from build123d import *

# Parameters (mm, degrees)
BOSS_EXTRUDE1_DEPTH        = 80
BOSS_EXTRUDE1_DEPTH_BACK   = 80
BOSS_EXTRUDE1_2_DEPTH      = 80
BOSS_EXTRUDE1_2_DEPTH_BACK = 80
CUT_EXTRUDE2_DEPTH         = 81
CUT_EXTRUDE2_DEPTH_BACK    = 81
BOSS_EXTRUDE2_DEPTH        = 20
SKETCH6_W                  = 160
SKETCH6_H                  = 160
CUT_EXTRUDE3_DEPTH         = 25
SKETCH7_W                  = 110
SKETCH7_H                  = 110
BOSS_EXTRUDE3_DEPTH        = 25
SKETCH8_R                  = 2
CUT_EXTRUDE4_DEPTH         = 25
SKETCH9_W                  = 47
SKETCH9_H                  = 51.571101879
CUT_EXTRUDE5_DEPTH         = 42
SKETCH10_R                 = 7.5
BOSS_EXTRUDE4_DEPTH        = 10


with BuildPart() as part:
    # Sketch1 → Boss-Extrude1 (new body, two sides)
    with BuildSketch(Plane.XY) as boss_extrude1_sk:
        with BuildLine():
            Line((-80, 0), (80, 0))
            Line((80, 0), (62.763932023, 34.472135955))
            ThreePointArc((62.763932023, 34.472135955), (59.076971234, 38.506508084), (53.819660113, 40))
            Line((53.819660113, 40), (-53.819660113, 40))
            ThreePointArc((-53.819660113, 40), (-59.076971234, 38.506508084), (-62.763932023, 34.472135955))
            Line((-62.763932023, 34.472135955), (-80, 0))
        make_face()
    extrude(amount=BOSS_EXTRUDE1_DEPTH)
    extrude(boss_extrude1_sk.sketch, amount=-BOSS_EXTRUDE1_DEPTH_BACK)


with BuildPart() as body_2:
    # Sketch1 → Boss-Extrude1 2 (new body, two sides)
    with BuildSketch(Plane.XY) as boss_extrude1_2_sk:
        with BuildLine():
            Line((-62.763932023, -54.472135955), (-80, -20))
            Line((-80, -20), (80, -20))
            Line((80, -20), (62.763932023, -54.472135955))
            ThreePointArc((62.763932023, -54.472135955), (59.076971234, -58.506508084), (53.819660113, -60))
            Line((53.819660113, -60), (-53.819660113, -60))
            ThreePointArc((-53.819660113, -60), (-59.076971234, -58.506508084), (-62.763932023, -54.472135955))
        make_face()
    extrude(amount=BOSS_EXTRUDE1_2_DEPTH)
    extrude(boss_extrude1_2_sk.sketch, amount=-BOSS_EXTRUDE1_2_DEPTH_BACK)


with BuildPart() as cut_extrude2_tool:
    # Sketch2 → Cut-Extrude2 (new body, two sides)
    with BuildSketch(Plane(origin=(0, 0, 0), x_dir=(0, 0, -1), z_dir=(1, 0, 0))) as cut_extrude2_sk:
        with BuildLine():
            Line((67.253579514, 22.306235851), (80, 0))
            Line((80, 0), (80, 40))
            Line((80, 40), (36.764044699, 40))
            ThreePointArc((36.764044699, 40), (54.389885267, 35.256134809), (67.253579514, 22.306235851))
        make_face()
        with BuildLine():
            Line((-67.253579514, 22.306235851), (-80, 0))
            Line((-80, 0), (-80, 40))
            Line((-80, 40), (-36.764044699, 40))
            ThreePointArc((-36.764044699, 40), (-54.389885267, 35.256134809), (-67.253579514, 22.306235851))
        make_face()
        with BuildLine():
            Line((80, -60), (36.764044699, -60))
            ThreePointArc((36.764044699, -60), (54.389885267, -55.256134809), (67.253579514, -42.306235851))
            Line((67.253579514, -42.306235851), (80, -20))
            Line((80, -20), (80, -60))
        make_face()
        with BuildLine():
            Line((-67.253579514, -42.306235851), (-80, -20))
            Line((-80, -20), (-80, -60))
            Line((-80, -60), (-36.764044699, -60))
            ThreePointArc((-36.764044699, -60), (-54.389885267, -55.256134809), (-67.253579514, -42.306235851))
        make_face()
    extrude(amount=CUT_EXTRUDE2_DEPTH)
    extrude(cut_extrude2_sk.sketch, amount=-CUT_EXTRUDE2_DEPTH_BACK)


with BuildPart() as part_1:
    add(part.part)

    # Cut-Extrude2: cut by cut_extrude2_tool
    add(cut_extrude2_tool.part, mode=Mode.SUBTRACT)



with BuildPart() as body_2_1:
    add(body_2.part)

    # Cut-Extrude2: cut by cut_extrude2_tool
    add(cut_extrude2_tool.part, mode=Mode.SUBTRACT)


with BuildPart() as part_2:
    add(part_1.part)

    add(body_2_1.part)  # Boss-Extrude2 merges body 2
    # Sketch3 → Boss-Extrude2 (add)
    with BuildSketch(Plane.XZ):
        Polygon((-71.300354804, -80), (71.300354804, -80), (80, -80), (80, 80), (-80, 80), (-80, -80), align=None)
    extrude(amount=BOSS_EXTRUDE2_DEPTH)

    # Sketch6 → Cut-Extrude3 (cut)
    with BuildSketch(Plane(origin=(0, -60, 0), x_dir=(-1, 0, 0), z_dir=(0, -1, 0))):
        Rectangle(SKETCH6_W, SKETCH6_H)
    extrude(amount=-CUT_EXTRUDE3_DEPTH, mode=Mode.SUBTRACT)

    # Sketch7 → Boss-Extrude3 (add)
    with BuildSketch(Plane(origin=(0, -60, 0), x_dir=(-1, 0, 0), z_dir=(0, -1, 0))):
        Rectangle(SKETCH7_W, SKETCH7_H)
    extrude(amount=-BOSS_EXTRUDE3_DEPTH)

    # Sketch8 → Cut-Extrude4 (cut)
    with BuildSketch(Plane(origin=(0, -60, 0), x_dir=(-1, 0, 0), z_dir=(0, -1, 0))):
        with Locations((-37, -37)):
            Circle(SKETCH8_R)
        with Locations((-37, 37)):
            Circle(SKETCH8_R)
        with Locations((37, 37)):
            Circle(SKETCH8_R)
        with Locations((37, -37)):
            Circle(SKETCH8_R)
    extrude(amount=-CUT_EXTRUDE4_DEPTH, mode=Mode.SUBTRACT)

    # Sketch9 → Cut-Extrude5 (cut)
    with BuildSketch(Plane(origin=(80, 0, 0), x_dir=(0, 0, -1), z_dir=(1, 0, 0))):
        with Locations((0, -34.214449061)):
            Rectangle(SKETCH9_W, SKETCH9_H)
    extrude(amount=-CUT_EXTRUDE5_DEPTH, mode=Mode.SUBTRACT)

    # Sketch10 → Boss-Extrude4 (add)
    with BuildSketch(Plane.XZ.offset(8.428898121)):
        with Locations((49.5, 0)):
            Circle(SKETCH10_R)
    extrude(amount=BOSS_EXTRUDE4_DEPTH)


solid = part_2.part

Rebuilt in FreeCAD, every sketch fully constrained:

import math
import FreeCAD as App
import Part
import Sketcher

doc = App.newDocument("Part")
params = doc.addObject("Spreadsheet::Sheet", "Params")
for row, (alias, value) in enumerate([
    ("sketch1_radius", "10 mm"),
    ("sketch1_width", "160 mm"),
    ("pad1_length", "80 mm"),
    ("pad1_length2", "80 mm"),
    ("sketch2_radius", "10 mm"),
    ("sketch2_width", "160 mm"),
    ("pad2_length", "80 mm"),
    ("pad2_length2", "80 mm"),
    ("sketch3_width", "40 mm"),
    ("pad3_length", "81 mm"),
    ("pad3_length2", "81 mm"),
    ("sketch4_width", "160 mm"),
    ("pad4_length", "20 mm"),
    ("sketch5_width", "160 mm"),
    ("pocket1_length", "25 mm"),
    ("sketch6_width", "110 mm"),
    ("pad5_length", "25 mm"),
    ("sketch7_diameter", "4 mm"),
    ("pocket2_length", "25 mm"),
    ("sketch8_height", "47 mm"),
    ("pocket3_length", "42 mm"),
    ("sketch9_diameter", "15 mm"),
    ("pad6_length", "10 mm"),
], start=1):
    params.set(f"A{row}", alias)
    params.set(f"B{row}", "=" + value)
    params.setAlias(f"B{row}", alias)

body = doc.addObject("PartDesign::Body", "Body")

# Sketch on XY plane
sketch1 = body.newObject("Sketcher::SketchObject", "Sketch")
sketch1.AttachmentSupport = (doc.getObject("XY_Plane"), [""])
sketch1.MapMode = "FlatFace"
sketch1.addGeometry(Part.LineSegment(App.Vector(-80, 0, 0), App.Vector(80, 0, 0)), False)
sketch1.addGeometry(Part.LineSegment(App.Vector(80, 0, 0), App.Vector(63, 34, 0)), False)
sketch1.addGeometry(Part.ArcOfCircle(Part.Circle(App.Vector(54, 30, 0), App.Vector(0, 0, 1), 10), math.radians(27), math.radians(90)), False)
sketch1.addGeometry(Part.LineSegment(App.Vector(54, 40, 0), App.Vector(-54, 40, 0)), False)
sketch1.addGeometry(Part.ArcOfCircle(Part.Circle(App.Vector(-54, 30, 0), App.Vector(0, 0, 1), 10), math.radians(90), math.radians(153)), False)
sketch1.addGeometry(Part.LineSegment(App.Vector(-63, 34, 0), App.Vector(-80, 0, 0)), False)
sketch1.addConstraint(Sketcher.Constraint("Coincident", 0, 2, 1, 1))
sketch1.addConstraint(Sketcher.Constraint("Tangent", 1, 2, 2, 1))
sketch1.addConstraint(Sketcher.Constraint("Tangent", 2, 2, 3, 1))
sketch1.addConstraint(Sketcher.Constraint("Tangent", 3, 2, 4, 1))
sketch1.addConstraint(Sketcher.Constraint("Tangent", 4, 2, 5, 1))
sketch1.addConstraint(Sketcher.Constraint("Coincident", 5, 2, 0, 1))
sketch1.addConstraint(Sketcher.Constraint("Horizontal", 0))
sketch1.addConstraint(Sketcher.Constraint("Horizontal", 3))
sketch1.addConstraint(Sketcher.Constraint("Equal", 2, 4))
sketch1.addConstraint(Sketcher.Constraint("Symmetric", 0, 2, 5, 2, -1, 1))
sketch1.addConstraint(Sketcher.Constraint("Horizontal", 1, 2, 4, 2))
sketch1.addConstraint(Sketcher.Constraint("Radius", 2, 10.0))
sketch1.addConstraint(Sketcher.Constraint("DistanceX", 0, 1, 0, 2, 160.0))
sketch1.addConstraint(Sketcher.Constraint("DistanceY", -1, 1, 2, 3, 30.0))
sketch1.addConstraint(Sketcher.Constraint("DistanceX", 3, 2, 3, 1, 107.63932))
sketch1.setExpression("Constraints[11]", "Params.sketch1_radius")
sketch1.setExpression("Constraints[12]", "Params.sketch1_width")
pad1 = body.newObject("PartDesign::Pad", "Pad")
pad1.Profile = sketch1
pad1.Type = "TwoLengths"
pad1.setExpression("Length", "Params.pad1_length")
pad1.setExpression("Length2", "Params.pad1_length2")
body2 = doc.addObject("PartDesign::Body", "Body001")

# Sketch on XY plane
sketch2 = body2.newObject("Sketcher::SketchObject", "Sketch001")
sketch2.AttachmentSupport = (doc.getObject("XY_Plane001"), [""])
sketch2.MapMode = "FlatFace"
sketch2.addGeometry(Part.LineSegment(App.Vector(-80, -20, 0), App.Vector(-63, -54, 0)), False)
sketch2.addGeometry(Part.ArcOfCircle(Part.Circle(App.Vector(-54, -50, 0), App.Vector(0, 0, 1), 10), math.radians(-153), math.radians(-90)), False)
sketch2.addGeometry(Part.LineSegment(App.Vector(-54, -60, 0), App.Vector(54, -60, 0)), False)
sketch2.addGeometry(Part.ArcOfCircle(Part.Circle(App.Vector(54, -50, 0), App.Vector(0, 0, 1), 10), math.radians(-90), math.radians(-27)), False)
sketch2.addGeometry(Part.LineSegment(App.Vector(63, -54, 0), App.Vector(80, -20, 0)), False)
sketch2.addGeometry(Part.LineSegment(App.Vector(80, -20, 0), App.Vector(-80, -20, 0)), False)
sketch2.addConstraint(Sketcher.Constraint("Tangent", 0, 2, 1, 1))
sketch2.addConstraint(Sketcher.Constraint("Tangent", 1, 2, 2, 1))
sketch2.addConstraint(Sketcher.Constraint("Tangent", 2, 2, 3, 1))
sketch2.addConstraint(Sketcher.Constraint("Tangent", 3, 2, 4, 1))
sketch2.addConstraint(Sketcher.Constraint("Coincident", 4, 2, 5, 1))
sketch2.addConstraint(Sketcher.Constraint("Coincident", 5, 2, 0, 1))
sketch2.addConstraint(Sketcher.Constraint("Horizontal", 2))
sketch2.addConstraint(Sketcher.Constraint("Horizontal", 5))
sketch2.addConstraint(Sketcher.Constraint("Equal", 1, 3))
sketch2.addConstraint(Sketcher.Constraint("Symmetric", 0, 2, 3, 2, -2))
sketch2.addConstraint(Sketcher.Constraint("Radius", 1, 10.0))
sketch2.addConstraint(Sketcher.Constraint("DistanceX", 5, 2, 5, 1, 160.0))
sketch2.addConstraint(Sketcher.Constraint("DistanceY", 1, 3, -1, 1, 50.0))
sketch2.addConstraint(Sketcher.Constraint("DistanceY", 4, 2, -1, 1, 20.0))
sketch2.addConstraint(Sketcher.Constraint("DistanceX", 2, 1, 2, 2, 107.63932))
sketch2.setExpression("Constraints[10]", "Params.sketch2_radius")
sketch2.setExpression("Constraints[11]", "Params.sketch2_width")
pad2 = body2.newObject("PartDesign::Pad", "Pad001")
pad2.Profile = sketch2
pad2.Type = "TwoLengths"
pad2.setExpression("Length", "Params.pad2_length")
pad2.setExpression("Length2", "Params.pad2_length2")
body3 = doc.addObject("PartDesign::Body", "Body002")
body3.AllowCompound = True

# Sketch on YZ plane
sketch3 = body3.newObject("Sketcher::SketchObject", "Sketch002")
sketch3.AttachmentSupport = (doc.getObject("YZ_Plane002"), [""])
sketch3.MapMode = "FlatFace"
sketch3.addGeometry(Part.LineSegment(App.Vector(22, -67, 0), App.Vector(0, -80, 0)), False)
sketch3.addGeometry(Part.LineSegment(App.Vector(0, -80, 0), App.Vector(40, -80, 0)), False)
sketch3.addGeometry(Part.LineSegment(App.Vector(40, -80, 0), App.Vector(40, -37, 0)), False)
sketch3.addGeometry(Part.ArcOfCircle(Part.Circle(App.Vector(5, -37, 0), App.Vector(0, 0, 1), 35), math.radians(-60), math.radians(0)), False)
sketch3.addGeometry(Part.LineSegment(App.Vector(0, 80, 0), App.Vector(22, 67, 0)), False)
sketch3.addGeometry(Part.ArcOfCircle(Part.Circle(App.Vector(5, 37, 0), App.Vector(0, 0, 1), 35), math.radians(0), math.radians(60)), False)
sketch3.addGeometry(Part.LineSegment(App.Vector(40, 37, 0), App.Vector(40, 80, 0)), False)
sketch3.addGeometry(Part.LineSegment(App.Vector(40, 80, 0), App.Vector(0, 80, 0)), False)
sketch3.addGeometry(Part.LineSegment(App.Vector(-60, -37, 0), App.Vector(-60, -80, 0)), False)
sketch3.addGeometry(Part.LineSegment(App.Vector(-60, -80, 0), App.Vector(-20, -80, 0)), False)
sketch3.addGeometry(Part.LineSegment(App.Vector(-20, -80, 0), App.Vector(-42, -67, 0)), False)
sketch3.addGeometry(Part.ArcOfCircle(Part.Circle(App.Vector(-25, -37, 0), App.Vector(0, 0, 1), 35), math.radians(-180), math.radians(-120)), False)
sketch3.addGeometry(Part.LineSegment(App.Vector(-42, 67, 0), App.Vector(-20, 80, 0)), False)
sketch3.addGeometry(Part.LineSegment(App.Vector(-20, 80, 0), App.Vector(-60, 80, 0)), False)
sketch3.addGeometry(Part.LineSegment(App.Vector(-60, 80, 0), App.Vector(-60, 37, 0)), False)
sketch3.addGeometry(Part.ArcOfCircle(Part.Circle(App.Vector(-25, 37, 0), App.Vector(0, 0, 1), 35), math.radians(120), math.radians(180)), False)
sketch3.addConstraint(Sketcher.Constraint("Coincident", 0, 2, 1, 1))
sketch3.addConstraint(Sketcher.Constraint("Coincident", 1, 2, 2, 1))
sketch3.addConstraint(Sketcher.Constraint("Tangent", 2, 2, 3, 2))
sketch3.addConstraint(Sketcher.Constraint("Tangent", 3, 1, 0, 1))
sketch3.addConstraint(Sketcher.Constraint("Tangent", 4, 2, 5, 2))
sketch3.addConstraint(Sketcher.Constraint("Tangent", 5, 1, 6, 1))
sketch3.addConstraint(Sketcher.Constraint("Coincident", 6, 2, 7, 1))
sketch3.addConstraint(Sketcher.Constraint("Coincident", 7, 2, 4, 1))
sketch3.addConstraint(Sketcher.Constraint("Coincident", 8, 2, 9, 1))
sketch3.addConstraint(Sketcher.Constraint("Coincident", 9, 2, 10, 1))
sketch3.addConstraint(Sketcher.Constraint("Tangent", 10, 2, 11, 2))
sketch3.addConstraint(Sketcher.Constraint("Tangent", 11, 1, 8, 1))
sketch3.addConstraint(Sketcher.Constraint("Coincident", 12, 2, 13, 1))
sketch3.addConstraint(Sketcher.Constraint("Coincident", 13, 2, 14, 1))
sketch3.addConstraint(Sketcher.Constraint("Tangent", 14, 2, 15, 2))
sketch3.addConstraint(Sketcher.Constraint("Tangent", 15, 1, 12, 1))
sketch3.addConstraint(Sketcher.Constraint("Horizontal", 1))
sketch3.addConstraint(Sketcher.Constraint("Vertical", 2))
sketch3.addConstraint(Sketcher.Constraint("Vertical", 6))
sketch3.addConstraint(Sketcher.Constraint("Horizontal", 7))
sketch3.addConstraint(Sketcher.Constraint("Vertical", 8))
sketch3.addConstraint(Sketcher.Constraint("Horizontal", 9))
sketch3.addConstraint(Sketcher.Constraint("Horizontal", 13))
sketch3.addConstraint(Sketcher.Constraint("Vertical", 14))
sketch3.addConstraint(Sketcher.Constraint("Equal", 3, 5))
sketch3.addConstraint(Sketcher.Constraint("Equal", 5, 11))
sketch3.addConstraint(Sketcher.Constraint("Equal", 11, 15))
sketch3.addConstraint(Sketcher.Constraint("Symmetric", 0, 2, 7, 2, -1, 1))
sketch3.addConstraint(Sketcher.Constraint("Symmetric", 3, 3, 5, 3, -1))
sketch3.addConstraint(Sketcher.Constraint("Symmetric", 11, 3, 15, 3, -1))
sketch3.addConstraint(Sketcher.Constraint("Symmetric", 9, 2, 12, 2, -1))
sketch3.addConstraint(Sketcher.Constraint("PointOnObject", 0, 2, -2))
sketch3.addConstraint(Sketcher.Constraint("Parallel", 4, 10))
sketch3.addConstraint(Sketcher.Constraint("Horizontal", 3, 3, 11, 3))
sketch3.addConstraint(Sketcher.Constraint("Horizontal", 1, 2, 8, 2))
sketch3.addConstraint(Sketcher.Constraint("DistanceX", 1, 1, 1, 2, 40.0))
sketch3.addConstraint(Sketcher.Constraint("DistanceY", 0, 2, -1, 1, 80.0))
sketch3.addConstraint(Sketcher.Constraint("DistanceX", 8, 2, -1, 1, 60.0))
sketch3.addConstraint(Sketcher.Constraint("Radius", 3, 35.116355))
sketch3.addConstraint(Sketcher.Constraint("Distance", 0, 25.691232))
sketch3.setExpression("Constraints[35]", "Params.sketch3_width")
pad3 = body3.newObject("PartDesign::Pad", "Pad002")
pad3.Profile = sketch3
pad3.Type = "TwoLengths"
pad3.setExpression("Length", "Params.pad3_length")
pad3.setExpression("Length2", "Params.pad3_length2")
doc.recompute()

body4 = doc.addObject("PartDesign::Body", "Body003")
body4.BaseFeature = body3
boolean = body.newObject("PartDesign::Boolean", "Boolean")
boolean.Type = "Cut"
boolean.addObjects([body4])
doc.recompute()

boolean2 = body2.newObject("PartDesign::Boolean", "Boolean001")
boolean2.Type = "Cut"
boolean2.addObjects([body3])
body.AllowCompound = True
doc.recompute()

boolean3 = body.newObject("PartDesign::Boolean", "Boolean002")
boolean3.Type = "Fuse"
boolean3.addObjects([body2])

# Sketch on XZ plane
sketch4 = body.newObject("Sketcher::SketchObject", "Sketch003")
sketch4.AttachmentSupport = (doc.getObject("XZ_Plane"), [""])
sketch4.MapMode = "FlatFace"
sketch4.addGeometry(Part.LineSegment(App.Vector(80, -80, 0), App.Vector(80, 80, 0)), False)
sketch4.addGeometry(Part.LineSegment(App.Vector(80, 80, 0), App.Vector(-80, 80, 0)), False)
sketch4.addGeometry(Part.LineSegment(App.Vector(-80, 80, 0), App.Vector(-80, -80, 0)), False)
sketch4.addGeometry(Part.LineSegment(App.Vector(-80, -80, 0), App.Vector(80, -80, 0)), False)
sketch4.addConstraint(Sketcher.Constraint("Coincident", 0, 2, 1, 1))
sketch4.addConstraint(Sketcher.Constraint("Coincident", 1, 2, 2, 1))
sketch4.addConstraint(Sketcher.Constraint("Coincident", 2, 2, 3, 1))
sketch4.addConstraint(Sketcher.Constraint("Coincident", 3, 2, 0, 1))
sketch4.addConstraint(Sketcher.Constraint("Vertical", 0))
sketch4.addConstraint(Sketcher.Constraint("Horizontal", 1))
sketch4.addConstraint(Sketcher.Constraint("Vertical", 2))
sketch4.addConstraint(Sketcher.Constraint("Horizontal", 3))
sketch4.addConstraint(Sketcher.Constraint("Symmetric", 0, 2, 2, 2, -1, 1))
sketch4.addConstraint(Sketcher.Constraint("Equal", 3, 0))
sketch4.addConstraint(Sketcher.Constraint("DistanceX", 1, 2, 1, 1, 160.0))
sketch4.setExpression("Constraints[10]", "Params.sketch4_width")
pad4 = body.newObject("PartDesign::Pad", "Pad003")
pad4.Profile = sketch4
pad4.setExpression("Length", "Params.pad4_length")

# Sketch on XZ plane
sketch5 = body.newObject("Sketcher::SketchObject", "Sketch004")
sketch5.AttachmentSupport = (doc.getObject("XZ_Plane"), [""])
sketch5.MapMode = "FlatFace"
sketch5.AttachmentOffset = App.Placement(App.Vector(0, 0, 60), App.Rotation())
sketch5.addGeometry(Part.LineSegment(App.Vector(80, -80, 0), App.Vector(80, 80, 0)), False)
sketch5.addGeometry(Part.LineSegment(App.Vector(80, 80, 0), App.Vector(-80, 80, 0)), False)
sketch5.addGeometry(Part.LineSegment(App.Vector(-80, 80, 0), App.Vector(-80, -80, 0)), False)
sketch5.addGeometry(Part.LineSegment(App.Vector(-80, -80, 0), App.Vector(80, -80, 0)), False)
sketch5.addConstraint(Sketcher.Constraint("Coincident", 0, 2, 1, 1))
sketch5.addConstraint(Sketcher.Constraint("Coincident", 1, 2, 2, 1))
sketch5.addConstraint(Sketcher.Constraint("Coincident", 2, 2, 3, 1))
sketch5.addConstraint(Sketcher.Constraint("Coincident", 3, 2, 0, 1))
sketch5.addConstraint(Sketcher.Constraint("Vertical", 0))
sketch5.addConstraint(Sketcher.Constraint("Horizontal", 1))
sketch5.addConstraint(Sketcher.Constraint("Vertical", 2))
sketch5.addConstraint(Sketcher.Constraint("Horizontal", 3))
sketch5.addConstraint(Sketcher.Constraint("Symmetric", 0, 2, 2, 2, -1, 1))
sketch5.addConstraint(Sketcher.Constraint("Equal", 3, 0))
sketch5.addConstraint(Sketcher.Constraint("DistanceX", 1, 2, 1, 1, 160.0))
sketch5.setExpression("Constraints[10]", "Params.sketch5_width")
pocket1 = body.newObject("PartDesign::Pocket", "Pocket")
pocket1.Profile = sketch5
pocket1.setExpression("Length", "Params.pocket1_length")

# Sketch on XZ plane
sketch6 = body.newObject("Sketcher::SketchObject", "Sketch005")
sketch6.AttachmentSupport = (doc.getObject("XZ_Plane"), [""])
sketch6.MapMode = "FlatFace"
sketch6.AttachmentOffset = App.Placement(App.Vector(0, 0, 60), App.Rotation())
sketch6.addGeometry(Part.LineSegment(App.Vector(55, -55, 0), App.Vector(55, 55, 0)), False)
sketch6.addGeometry(Part.LineSegment(App.Vector(55, 55, 0), App.Vector(-55, 55, 0)), False)
sketch6.addGeometry(Part.LineSegment(App.Vector(-55, 55, 0), App.Vector(-55, -55, 0)), False)
sketch6.addGeometry(Part.LineSegment(App.Vector(-55, -55, 0), App.Vector(55, -55, 0)), False)
sketch6.addConstraint(Sketcher.Constraint("Coincident", 0, 2, 1, 1))
sketch6.addConstraint(Sketcher.Constraint("Coincident", 1, 2, 2, 1))
sketch6.addConstraint(Sketcher.Constraint("Coincident", 2, 2, 3, 1))
sketch6.addConstraint(Sketcher.Constraint("Coincident", 3, 2, 0, 1))
sketch6.addConstraint(Sketcher.Constraint("Vertical", 0))
sketch6.addConstraint(Sketcher.Constraint("Horizontal", 1))
sketch6.addConstraint(Sketcher.Constraint("Vertical", 2))
sketch6.addConstraint(Sketcher.Constraint("Horizontal", 3))
sketch6.addConstraint(Sketcher.Constraint("Symmetric", 0, 2, 2, 2, -1, 1))
sketch6.addConstraint(Sketcher.Constraint("Equal", 3, 0))
sketch6.addConstraint(Sketcher.Constraint("DistanceX", 1, 2, 1, 1, 110.0))
sketch6.setExpression("Constraints[10]", "Params.sketch6_width")
pad5 = body.newObject("PartDesign::Pad", "Pad004")
pad5.Profile = sketch6
pad5.setExpression("Length", "Params.pad5_length")
pad5.Reversed = True

# Sketch on XZ plane
sketch7 = body.newObject("Sketcher::SketchObject", "Sketch006")
sketch7.AttachmentSupport = (doc.getObject("XZ_Plane"), [""])
sketch7.MapMode = "FlatFace"
sketch7.AttachmentOffset = App.Placement(App.Vector(0, 0, 60), App.Rotation())
sketch7.addGeometry(Part.Circle(App.Vector(37, 37, 0), App.Vector(0, 0, 1), 2), False)
sketch7.addGeometry(Part.Circle(App.Vector(37, -37, 0), App.Vector(0, 0, 1), 2), False)
sketch7.addGeometry(Part.Circle(App.Vector(-37, -37, 0), App.Vector(0, 0, 1), 2), False)
sketch7.addGeometry(Part.Circle(App.Vector(-37, 37, 0), App.Vector(0, 0, 1), 2), False)
sketch7.addConstraint(Sketcher.Constraint("Equal", 0, 1))
sketch7.addConstraint(Sketcher.Constraint("Equal", 1, 2))
sketch7.addConstraint(Sketcher.Constraint("Equal", 2, 3))
sketch7.addConstraint(Sketcher.Constraint("Symmetric", 0, 3, 2, 3, -1, 1))
sketch7.addConstraint(Sketcher.Constraint("Symmetric", 1, 3, 3, 3, -1, 1))
sketch7.addConstraint(Sketcher.Constraint("Symmetric", 1, 3, 2, 3, -2))
sketch7.addConstraint(Sketcher.Constraint("Diameter", 0, 4.0))
sketch7.addConstraint(Sketcher.Constraint("DistanceX", -1, 1, 0, 3, 37.0))
sketch7.addConstraint(Sketcher.Constraint("DistanceY", -1, 1, 0, 3, 37.0))
sketch7.setExpression("Constraints[6]", "Params.sketch7_diameter")
pocket2 = body.newObject("PartDesign::Pocket", "Pocket001")
pocket2.Profile = sketch7
pocket2.setExpression("Length", "Params.pocket2_length")

# Sketch on YZ plane
sketch8 = body.newObject("Sketcher::SketchObject", "Sketch007")
sketch8.AttachmentSupport = (doc.getObject("YZ_Plane"), [""])
sketch8.MapMode = "FlatFace"
sketch8.AttachmentOffset = App.Placement(App.Vector(0, 0, 80), App.Rotation())
sketch8.addGeometry(Part.LineSegment(App.Vector(-8, 24, 0), App.Vector(-60, 24, 0)), False)
sketch8.addGeometry(Part.LineSegment(App.Vector(-60, 24, 0), App.Vector(-60, -24, 0)), False)
sketch8.addGeometry(Part.LineSegment(App.Vector(-60, -24, 0), App.Vector(-8, -24, 0)), False)
sketch8.addGeometry(Part.LineSegment(App.Vector(-8, -24, 0), App.Vector(-8, 24, 0)), False)
sketch8.addConstraint(Sketcher.Constraint("Coincident", 0, 2, 1, 1))
sketch8.addConstraint(Sketcher.Constraint("Coincident", 1, 2, 2, 1))
sketch8.addConstraint(Sketcher.Constraint("Coincident", 2, 2, 3, 1))
sketch8.addConstraint(Sketcher.Constraint("Coincident", 3, 2, 0, 1))
sketch8.addConstraint(Sketcher.Constraint("Horizontal", 0))
sketch8.addConstraint(Sketcher.Constraint("Vertical", 1))
sketch8.addConstraint(Sketcher.Constraint("Horizontal", 2))
sketch8.addConstraint(Sketcher.Constraint("Vertical", 3))
sketch8.addConstraint(Sketcher.Constraint("DistanceY", 1, 2, 1, 1, 47.0))
sketch8.addConstraint(Sketcher.Constraint("DistanceX", 0, 2, -1, 1, 60.0))
sketch8.addConstraint(Sketcher.Constraint("DistanceY", -1, 1, 0, 2, 23.5))
sketch8.addConstraint(Sketcher.Constraint("DistanceX", 0, 2, 0, 1, 51.571102))
sketch8.setExpression("Constraints[8]", "Params.sketch8_height")
pocket3 = body.newObject("PartDesign::Pocket", "Pocket002")
pocket3.Profile = sketch8
pocket3.setExpression("Length", "Params.pocket3_length")

# Sketch on XZ plane
sketch9 = body.newObject("Sketcher::SketchObject", "Sketch008")
sketch9.AttachmentSupport = (doc.getObject("XZ_Plane"), [""])
sketch9.MapMode = "FlatFace"
sketch9.AttachmentOffset = App.Placement(App.Vector(0, 0, 8.428898), App.Rotation())
sketch9.addGeometry(Part.Circle(App.Vector(50, 0, 0), App.Vector(0, 0, 1), 8), False)
sketch9.addConstraint(Sketcher.Constraint("PointOnObject", 0, 3, -1))
sketch9.addConstraint(Sketcher.Constraint("Diameter", 0, 15.0))
sketch9.addConstraint(Sketcher.Constraint("DistanceX", -1, 1, 0, 3, 49.5))
sketch9.setExpression("Constraints[1]", "Params.sketch9_diameter")
pad6 = body.newObject("PartDesign::Pad", "Pad005")
pad6.Profile = sketch9
pad6.setExpression("Length", "Params.pad6_length")

doc.recompute()
